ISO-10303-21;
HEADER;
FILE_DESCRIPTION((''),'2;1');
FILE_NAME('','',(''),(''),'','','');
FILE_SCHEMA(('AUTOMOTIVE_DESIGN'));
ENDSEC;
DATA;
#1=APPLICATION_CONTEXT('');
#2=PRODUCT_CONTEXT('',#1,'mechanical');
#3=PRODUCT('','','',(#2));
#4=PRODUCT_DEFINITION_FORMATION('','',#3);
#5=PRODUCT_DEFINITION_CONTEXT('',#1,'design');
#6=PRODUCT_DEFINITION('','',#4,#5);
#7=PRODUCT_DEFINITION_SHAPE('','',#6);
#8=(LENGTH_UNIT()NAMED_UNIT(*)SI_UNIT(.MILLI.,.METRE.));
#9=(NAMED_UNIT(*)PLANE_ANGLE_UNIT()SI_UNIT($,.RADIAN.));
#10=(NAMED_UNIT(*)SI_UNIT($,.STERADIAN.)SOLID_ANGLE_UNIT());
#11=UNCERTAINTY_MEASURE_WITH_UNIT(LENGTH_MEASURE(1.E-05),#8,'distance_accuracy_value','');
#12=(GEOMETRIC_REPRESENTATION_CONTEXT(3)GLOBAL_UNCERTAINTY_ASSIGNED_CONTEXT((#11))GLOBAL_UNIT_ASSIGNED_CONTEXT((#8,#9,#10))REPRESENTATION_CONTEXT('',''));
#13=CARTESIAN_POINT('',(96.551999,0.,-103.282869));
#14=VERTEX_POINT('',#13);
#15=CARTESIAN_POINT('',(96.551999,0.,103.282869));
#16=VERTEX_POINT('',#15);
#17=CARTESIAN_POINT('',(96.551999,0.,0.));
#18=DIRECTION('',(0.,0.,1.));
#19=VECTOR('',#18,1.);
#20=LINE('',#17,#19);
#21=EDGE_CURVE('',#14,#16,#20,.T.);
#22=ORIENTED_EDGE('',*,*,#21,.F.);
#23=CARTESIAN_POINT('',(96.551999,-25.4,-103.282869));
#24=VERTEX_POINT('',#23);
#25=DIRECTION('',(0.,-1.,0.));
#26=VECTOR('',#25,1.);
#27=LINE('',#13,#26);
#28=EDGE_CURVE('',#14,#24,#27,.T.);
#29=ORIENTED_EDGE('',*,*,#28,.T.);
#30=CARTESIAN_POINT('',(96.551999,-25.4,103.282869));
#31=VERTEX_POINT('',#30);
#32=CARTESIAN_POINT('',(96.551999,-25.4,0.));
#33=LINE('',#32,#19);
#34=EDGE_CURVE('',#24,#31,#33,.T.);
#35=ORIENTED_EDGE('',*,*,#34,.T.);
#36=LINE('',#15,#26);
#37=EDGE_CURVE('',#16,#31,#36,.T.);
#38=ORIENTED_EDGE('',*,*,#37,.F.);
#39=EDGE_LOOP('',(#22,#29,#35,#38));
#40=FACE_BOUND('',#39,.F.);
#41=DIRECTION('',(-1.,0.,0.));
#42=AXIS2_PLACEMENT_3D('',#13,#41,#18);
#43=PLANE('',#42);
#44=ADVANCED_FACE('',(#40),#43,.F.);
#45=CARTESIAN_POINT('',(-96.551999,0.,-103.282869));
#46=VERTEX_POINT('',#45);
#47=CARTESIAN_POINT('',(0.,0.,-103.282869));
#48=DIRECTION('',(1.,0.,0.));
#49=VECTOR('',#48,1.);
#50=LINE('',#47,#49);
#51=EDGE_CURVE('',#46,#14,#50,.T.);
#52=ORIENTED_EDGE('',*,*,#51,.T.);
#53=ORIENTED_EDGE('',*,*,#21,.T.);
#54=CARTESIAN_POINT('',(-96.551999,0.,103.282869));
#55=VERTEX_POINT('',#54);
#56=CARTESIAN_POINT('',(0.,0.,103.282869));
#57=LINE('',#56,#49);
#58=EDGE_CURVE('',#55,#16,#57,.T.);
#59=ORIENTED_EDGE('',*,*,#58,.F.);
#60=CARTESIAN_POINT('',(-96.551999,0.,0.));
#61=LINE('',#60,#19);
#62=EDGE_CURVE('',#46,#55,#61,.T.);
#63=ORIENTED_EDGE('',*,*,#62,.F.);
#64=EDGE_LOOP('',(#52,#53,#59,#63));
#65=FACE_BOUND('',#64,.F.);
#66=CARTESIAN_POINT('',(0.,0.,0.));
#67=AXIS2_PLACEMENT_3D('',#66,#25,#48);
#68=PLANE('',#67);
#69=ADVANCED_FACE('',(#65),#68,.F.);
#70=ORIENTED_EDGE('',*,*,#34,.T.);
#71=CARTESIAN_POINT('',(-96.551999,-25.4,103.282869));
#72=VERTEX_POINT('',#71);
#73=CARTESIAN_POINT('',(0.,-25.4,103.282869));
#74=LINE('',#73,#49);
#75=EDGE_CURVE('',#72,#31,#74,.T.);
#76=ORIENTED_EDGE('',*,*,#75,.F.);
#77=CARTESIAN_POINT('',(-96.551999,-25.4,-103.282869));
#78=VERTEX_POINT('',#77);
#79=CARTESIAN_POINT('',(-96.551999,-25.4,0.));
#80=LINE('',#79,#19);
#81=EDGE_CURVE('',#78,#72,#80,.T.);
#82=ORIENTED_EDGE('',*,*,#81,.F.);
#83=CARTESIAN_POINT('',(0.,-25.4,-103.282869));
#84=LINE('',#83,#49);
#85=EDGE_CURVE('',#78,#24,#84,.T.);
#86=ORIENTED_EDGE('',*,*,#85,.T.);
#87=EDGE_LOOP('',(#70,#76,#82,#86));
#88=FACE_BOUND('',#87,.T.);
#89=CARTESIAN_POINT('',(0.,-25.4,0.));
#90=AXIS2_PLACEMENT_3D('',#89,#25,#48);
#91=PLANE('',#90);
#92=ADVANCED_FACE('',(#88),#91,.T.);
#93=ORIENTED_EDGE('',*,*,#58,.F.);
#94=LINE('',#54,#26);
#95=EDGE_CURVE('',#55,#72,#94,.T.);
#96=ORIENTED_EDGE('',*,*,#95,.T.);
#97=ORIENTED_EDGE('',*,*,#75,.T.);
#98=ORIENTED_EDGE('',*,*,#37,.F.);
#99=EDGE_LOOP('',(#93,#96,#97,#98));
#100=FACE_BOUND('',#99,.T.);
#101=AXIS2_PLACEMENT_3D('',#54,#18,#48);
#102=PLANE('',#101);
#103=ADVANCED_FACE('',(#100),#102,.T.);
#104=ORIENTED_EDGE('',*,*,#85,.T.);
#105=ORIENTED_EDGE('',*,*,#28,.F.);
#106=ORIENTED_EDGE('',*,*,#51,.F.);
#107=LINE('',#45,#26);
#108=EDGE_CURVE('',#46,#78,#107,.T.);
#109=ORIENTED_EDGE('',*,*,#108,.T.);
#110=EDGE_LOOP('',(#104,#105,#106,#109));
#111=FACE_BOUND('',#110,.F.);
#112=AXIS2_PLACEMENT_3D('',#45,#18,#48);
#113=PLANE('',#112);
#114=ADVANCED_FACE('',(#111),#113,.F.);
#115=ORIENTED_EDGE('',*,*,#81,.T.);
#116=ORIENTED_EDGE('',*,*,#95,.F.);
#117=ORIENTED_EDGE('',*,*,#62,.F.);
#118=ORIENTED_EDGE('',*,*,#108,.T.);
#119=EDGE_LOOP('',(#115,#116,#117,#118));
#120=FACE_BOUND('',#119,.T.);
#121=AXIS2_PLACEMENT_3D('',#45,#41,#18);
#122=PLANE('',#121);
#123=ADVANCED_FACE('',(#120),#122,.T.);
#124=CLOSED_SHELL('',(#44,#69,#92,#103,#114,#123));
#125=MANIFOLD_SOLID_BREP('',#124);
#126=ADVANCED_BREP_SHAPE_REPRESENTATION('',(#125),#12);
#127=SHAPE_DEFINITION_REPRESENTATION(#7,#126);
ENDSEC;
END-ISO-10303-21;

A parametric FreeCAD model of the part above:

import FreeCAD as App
import Part
import Sketcher

V = App.Vector
Q = App.Units.Quantity

doc = App.newDocument("Part")
body = doc.addObject("PartDesign::Body", "Body")

sketch1 = body.newObject("Sketcher::SketchObject", "Sketch")
sketch1.AttachmentSupport = (doc.getObject("XZ_Plane"), [""])
sketch1.MapMode = "FlatFace"
sketch1.addGeometry([
    Part.LineSegment(V(-96.551999, 103.282869, 0), V(-96.551999, -103.282869, 0)),
    Part.LineSegment(V(-96.551999, -103.282869, 0), V(96.551999, -103.282869, 0)),
    Part.LineSegment(V(96.551999, -103.282869, 0), V(96.551999, 103.282869, 0)),
    Part.LineSegment(V(96.551999, 103.282869, 0), V(-96.551999, 103.282869, 0)),
], False)
sketch1.addConstraint([
    Sketcher.Constraint("Coincident", 0, 2, 1, 1),
    Sketcher.Constraint("Coincident", 1, 2, 2, 1),
    Sketcher.Constraint("Coincident", 2, 2, 3, 1),
    Sketcher.Constraint("Coincident", 3, 2, 0, 1),
    Sketcher.Constraint("Vertical", 0),
    Sketcher.Constraint("Horizontal", 1),
    Sketcher.Constraint("Vertical", 2),
    Sketcher.Constraint("Horizontal", 3),
    Sketcher.Constraint("Symmetric", 0, 2, 2, 2, -1, 1),
    Sketcher.Constraint("DistanceX", 1, 1, 1, 2, 193.103999),
    Sketcher.Constraint("DistanceY", 0, 2, 0, 1, 206.565738),
])
pad1 = body.newObject("PartDesign::Pad", "Pad")
pad1.Profile = sketch1
pad1.Length = Q("1 in")

doc.recompute()
